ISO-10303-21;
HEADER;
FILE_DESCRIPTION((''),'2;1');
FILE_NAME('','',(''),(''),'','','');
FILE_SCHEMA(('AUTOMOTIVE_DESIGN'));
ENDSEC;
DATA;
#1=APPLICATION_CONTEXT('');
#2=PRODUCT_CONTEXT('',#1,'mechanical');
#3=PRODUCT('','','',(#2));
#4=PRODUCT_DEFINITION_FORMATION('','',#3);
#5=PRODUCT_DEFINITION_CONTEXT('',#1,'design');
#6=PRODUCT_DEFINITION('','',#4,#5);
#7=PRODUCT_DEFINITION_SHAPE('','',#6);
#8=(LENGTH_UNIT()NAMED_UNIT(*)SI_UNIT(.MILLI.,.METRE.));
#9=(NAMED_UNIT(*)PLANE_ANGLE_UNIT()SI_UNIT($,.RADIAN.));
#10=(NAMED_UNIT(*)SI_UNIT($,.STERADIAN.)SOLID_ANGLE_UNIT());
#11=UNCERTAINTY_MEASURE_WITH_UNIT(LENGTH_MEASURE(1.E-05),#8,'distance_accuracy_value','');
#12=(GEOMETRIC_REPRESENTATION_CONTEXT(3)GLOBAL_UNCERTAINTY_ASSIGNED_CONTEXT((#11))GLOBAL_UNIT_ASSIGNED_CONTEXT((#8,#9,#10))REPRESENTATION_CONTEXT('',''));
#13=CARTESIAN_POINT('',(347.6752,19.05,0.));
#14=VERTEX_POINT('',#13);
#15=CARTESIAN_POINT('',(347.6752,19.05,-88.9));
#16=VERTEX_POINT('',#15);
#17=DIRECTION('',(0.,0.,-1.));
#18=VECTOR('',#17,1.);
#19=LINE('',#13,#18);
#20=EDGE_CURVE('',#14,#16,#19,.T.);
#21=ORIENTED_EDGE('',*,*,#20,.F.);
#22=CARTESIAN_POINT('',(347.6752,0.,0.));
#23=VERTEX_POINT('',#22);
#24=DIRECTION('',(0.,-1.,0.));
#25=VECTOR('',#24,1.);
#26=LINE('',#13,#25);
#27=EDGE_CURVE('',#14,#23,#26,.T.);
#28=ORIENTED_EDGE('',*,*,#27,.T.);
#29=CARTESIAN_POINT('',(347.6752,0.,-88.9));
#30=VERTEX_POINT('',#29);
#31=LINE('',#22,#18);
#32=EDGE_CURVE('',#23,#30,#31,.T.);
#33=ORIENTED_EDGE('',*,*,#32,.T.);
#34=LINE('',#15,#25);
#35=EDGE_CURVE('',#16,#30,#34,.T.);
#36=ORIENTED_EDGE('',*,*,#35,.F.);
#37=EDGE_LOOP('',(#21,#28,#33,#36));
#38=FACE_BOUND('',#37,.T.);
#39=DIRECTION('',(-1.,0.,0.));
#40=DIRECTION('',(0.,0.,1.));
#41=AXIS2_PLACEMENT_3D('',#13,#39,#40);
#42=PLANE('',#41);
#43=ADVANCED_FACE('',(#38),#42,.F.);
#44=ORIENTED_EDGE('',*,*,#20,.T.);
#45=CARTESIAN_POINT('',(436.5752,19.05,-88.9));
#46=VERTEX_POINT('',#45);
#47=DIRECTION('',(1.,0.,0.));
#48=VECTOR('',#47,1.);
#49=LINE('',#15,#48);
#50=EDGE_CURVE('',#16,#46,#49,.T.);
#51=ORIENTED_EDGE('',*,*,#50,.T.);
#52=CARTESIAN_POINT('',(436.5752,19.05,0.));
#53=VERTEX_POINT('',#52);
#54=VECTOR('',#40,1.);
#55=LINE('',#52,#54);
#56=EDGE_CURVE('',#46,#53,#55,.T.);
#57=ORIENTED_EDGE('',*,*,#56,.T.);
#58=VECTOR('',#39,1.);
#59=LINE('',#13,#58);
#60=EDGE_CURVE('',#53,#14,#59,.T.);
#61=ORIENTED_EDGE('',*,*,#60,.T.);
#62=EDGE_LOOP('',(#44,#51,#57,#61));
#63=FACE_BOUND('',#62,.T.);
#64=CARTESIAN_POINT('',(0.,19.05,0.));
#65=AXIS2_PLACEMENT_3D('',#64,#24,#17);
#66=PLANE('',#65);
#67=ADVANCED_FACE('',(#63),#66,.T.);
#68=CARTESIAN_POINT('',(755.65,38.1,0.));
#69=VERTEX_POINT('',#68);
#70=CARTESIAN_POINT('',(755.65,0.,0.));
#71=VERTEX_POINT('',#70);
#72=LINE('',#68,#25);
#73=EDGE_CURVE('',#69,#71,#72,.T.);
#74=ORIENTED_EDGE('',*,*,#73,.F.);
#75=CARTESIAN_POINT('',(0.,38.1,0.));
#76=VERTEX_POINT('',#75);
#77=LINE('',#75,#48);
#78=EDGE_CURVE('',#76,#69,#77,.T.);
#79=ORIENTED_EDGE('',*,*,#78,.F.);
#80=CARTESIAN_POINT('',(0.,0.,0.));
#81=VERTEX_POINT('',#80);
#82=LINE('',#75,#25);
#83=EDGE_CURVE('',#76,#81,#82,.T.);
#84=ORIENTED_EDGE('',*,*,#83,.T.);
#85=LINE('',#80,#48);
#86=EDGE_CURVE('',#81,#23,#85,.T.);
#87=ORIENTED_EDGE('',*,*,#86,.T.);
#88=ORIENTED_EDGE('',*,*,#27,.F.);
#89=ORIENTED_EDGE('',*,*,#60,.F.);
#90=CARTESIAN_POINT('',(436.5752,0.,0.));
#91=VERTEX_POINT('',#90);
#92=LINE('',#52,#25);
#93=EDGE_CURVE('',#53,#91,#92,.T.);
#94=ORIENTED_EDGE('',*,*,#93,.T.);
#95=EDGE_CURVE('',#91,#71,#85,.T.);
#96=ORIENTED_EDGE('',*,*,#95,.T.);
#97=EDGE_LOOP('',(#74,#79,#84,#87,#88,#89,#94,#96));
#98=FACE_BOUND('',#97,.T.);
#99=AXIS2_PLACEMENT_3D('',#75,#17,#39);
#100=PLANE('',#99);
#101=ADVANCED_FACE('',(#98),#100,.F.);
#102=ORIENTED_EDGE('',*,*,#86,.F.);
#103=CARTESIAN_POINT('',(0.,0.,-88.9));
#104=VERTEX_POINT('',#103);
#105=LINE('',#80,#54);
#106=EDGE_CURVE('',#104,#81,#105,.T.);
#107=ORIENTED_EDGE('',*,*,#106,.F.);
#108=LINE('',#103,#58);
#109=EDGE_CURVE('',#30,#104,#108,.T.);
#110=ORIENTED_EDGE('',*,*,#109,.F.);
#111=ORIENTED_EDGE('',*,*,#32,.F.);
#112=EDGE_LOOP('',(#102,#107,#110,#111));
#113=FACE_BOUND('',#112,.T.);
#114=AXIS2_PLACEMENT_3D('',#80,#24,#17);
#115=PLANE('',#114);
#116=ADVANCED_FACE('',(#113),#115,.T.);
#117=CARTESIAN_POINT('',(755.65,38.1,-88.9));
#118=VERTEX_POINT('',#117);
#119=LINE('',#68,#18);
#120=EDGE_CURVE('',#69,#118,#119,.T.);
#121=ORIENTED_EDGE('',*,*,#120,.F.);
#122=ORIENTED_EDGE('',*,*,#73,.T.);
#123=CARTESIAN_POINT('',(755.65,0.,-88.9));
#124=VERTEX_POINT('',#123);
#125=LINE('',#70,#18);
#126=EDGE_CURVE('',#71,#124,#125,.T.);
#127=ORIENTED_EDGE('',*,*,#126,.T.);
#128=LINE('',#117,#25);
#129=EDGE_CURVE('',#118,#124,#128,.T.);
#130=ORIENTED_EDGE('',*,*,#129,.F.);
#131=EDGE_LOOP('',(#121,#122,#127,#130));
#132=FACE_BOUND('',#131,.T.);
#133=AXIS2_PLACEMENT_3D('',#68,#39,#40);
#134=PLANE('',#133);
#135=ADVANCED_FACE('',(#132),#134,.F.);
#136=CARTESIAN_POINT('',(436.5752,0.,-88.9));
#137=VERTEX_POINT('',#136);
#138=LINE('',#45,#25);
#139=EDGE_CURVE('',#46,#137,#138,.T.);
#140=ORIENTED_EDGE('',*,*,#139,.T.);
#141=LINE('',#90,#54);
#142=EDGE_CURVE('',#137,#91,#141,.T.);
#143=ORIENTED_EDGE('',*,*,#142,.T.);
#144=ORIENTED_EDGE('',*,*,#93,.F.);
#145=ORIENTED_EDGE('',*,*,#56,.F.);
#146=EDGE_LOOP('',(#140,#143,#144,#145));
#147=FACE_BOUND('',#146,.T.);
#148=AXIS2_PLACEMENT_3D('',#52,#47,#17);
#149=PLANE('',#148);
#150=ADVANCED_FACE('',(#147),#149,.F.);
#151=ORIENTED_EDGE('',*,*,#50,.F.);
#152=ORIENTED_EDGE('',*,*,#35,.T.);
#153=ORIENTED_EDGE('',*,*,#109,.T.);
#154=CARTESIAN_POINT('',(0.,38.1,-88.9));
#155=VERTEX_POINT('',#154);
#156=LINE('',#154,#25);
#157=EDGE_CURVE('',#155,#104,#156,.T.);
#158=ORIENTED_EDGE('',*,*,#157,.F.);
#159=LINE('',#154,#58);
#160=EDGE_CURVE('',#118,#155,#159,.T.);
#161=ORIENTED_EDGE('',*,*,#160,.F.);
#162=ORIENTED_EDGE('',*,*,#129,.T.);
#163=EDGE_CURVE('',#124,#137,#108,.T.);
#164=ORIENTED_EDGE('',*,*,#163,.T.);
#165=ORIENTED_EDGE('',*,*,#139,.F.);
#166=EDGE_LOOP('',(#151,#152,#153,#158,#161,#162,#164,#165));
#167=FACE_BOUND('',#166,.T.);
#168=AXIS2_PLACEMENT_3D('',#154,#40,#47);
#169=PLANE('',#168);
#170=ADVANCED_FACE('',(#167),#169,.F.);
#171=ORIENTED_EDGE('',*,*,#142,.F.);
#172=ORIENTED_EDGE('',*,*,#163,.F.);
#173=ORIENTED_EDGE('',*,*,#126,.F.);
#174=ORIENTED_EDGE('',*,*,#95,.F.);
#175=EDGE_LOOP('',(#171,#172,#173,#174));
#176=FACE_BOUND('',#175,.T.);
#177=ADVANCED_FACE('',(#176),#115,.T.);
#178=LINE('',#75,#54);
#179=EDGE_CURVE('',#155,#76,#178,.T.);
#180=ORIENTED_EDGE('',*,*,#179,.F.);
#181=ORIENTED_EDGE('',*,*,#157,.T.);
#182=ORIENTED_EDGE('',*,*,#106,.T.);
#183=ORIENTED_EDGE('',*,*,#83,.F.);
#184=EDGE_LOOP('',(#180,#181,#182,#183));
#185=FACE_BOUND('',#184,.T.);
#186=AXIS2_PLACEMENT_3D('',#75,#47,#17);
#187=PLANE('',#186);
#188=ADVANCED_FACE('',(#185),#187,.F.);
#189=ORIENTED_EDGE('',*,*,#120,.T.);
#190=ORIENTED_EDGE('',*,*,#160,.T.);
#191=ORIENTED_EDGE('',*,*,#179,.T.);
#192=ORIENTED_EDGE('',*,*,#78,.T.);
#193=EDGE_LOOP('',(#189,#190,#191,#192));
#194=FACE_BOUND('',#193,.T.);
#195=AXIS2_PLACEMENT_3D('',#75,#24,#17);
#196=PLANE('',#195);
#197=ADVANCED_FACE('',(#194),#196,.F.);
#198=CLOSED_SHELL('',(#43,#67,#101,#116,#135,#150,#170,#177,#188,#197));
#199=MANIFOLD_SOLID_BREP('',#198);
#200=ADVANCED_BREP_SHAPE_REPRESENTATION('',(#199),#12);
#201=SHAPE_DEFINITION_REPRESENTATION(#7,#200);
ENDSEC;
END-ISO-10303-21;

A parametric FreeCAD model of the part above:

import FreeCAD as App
import Part
import Sketcher
from FreeCAD import Vector
Q = App.Units.Quantity


def add_polygon(sketch, points):
    """Adds a closed chain of lines whose ends are joined by coincident constraints."""
    first, n = sketch.GeometryCount, len(points)
    for a, b in zip(points, points[1:] + points[:1]):
        sketch.addGeometry(Part.LineSegment(App.Vector(*a, 0), App.Vector(*b, 0)), False)
    for i in range(n):
        sketch.addConstraint(Sketcher.Constraint("Coincident", first + i, 2, first + (i + 1) % n, 1))

doc = App.newDocument("Part")
body = doc.addObject("PartDesign::Body", "Body")

# Sketch on XZ plane
sketch1 = body.newObject("Sketcher::SketchObject", "Sketch")
sketch1.AttachmentSupport = (doc.getObject("XZ_Plane"), [""])
sketch1.MapMode = "FlatFace"
add_polygon(sketch1, [(0, -88.9), (0, 0), (755.65, 0), (755.65, -88.9)])  # lines 0-3
sketch1.addConstraint(Sketcher.Constraint("Vertical", 0))
sketch1.addConstraint(Sketcher.Constraint("Horizontal", 1))
sketch1.addConstraint(Sketcher.Constraint("Vertical", 2))
sketch1.addConstraint(Sketcher.Constraint("Horizontal", 3))
sketch1.addConstraint(Sketcher.Constraint("Coincident", 0, 2, -1, 1))
sketch1.addConstraint(Sketcher.Constraint("DistanceY", 0, 1, 0, 2, Q("3.5 in")))
sketch1.addConstraint(Sketcher.Constraint("DistanceX", 1, 1, 1, 2, Q("29.75 in")))
pad1 = body.newObject("PartDesign::Pad", "Pad")
pad1.Profile = sketch1
pad1.Length = Q("1.5 in")
pad1.Reversed = True

# Sketch on XZ plane
sketch2 = body.newObject("Sketcher::SketchObject", "Sketch001")
sketch2.AttachmentSupport = (doc.getObject("XZ_Plane"), [""])
sketch2.MapMode = "FlatFace"
add_polygon(sketch2, [(347.6752, 0), (347.6752, -88.9), (436.5752, -88.9), (436.5752, 0)])  # lines 0-3
sketch2.addConstraint(Sketcher.Constraint("Vertical", 0))
sketch2.addConstraint(Sketcher.Constraint("Horizontal", 1))
sketch2.addConstraint(Sketcher.Constraint("Vertical", 2))
sketch2.addConstraint(Sketcher.Constraint("Horizontal", 3))
sketch2.addConstraint(Sketcher.Constraint("PointOnObject", 2, 2, -1))
sketch2.addConstraint(Sketcher.Constraint("Equal", 3, 0))
sketch2.addConstraint(Sketcher.Constraint("DistanceX", 1, 1, 1, 2, Q("3.5 in")))
sketch2.addConstraint(Sketcher.Constraint("DistanceX", -1, 1, 0, 2, Q("13.688 in")))
pocket1 = body.newObject("PartDesign::Pocket", "Pocket")
pocket1.Profile = sketch2
pocket1.Length = Q("0.75 in")

doc.recompute()
